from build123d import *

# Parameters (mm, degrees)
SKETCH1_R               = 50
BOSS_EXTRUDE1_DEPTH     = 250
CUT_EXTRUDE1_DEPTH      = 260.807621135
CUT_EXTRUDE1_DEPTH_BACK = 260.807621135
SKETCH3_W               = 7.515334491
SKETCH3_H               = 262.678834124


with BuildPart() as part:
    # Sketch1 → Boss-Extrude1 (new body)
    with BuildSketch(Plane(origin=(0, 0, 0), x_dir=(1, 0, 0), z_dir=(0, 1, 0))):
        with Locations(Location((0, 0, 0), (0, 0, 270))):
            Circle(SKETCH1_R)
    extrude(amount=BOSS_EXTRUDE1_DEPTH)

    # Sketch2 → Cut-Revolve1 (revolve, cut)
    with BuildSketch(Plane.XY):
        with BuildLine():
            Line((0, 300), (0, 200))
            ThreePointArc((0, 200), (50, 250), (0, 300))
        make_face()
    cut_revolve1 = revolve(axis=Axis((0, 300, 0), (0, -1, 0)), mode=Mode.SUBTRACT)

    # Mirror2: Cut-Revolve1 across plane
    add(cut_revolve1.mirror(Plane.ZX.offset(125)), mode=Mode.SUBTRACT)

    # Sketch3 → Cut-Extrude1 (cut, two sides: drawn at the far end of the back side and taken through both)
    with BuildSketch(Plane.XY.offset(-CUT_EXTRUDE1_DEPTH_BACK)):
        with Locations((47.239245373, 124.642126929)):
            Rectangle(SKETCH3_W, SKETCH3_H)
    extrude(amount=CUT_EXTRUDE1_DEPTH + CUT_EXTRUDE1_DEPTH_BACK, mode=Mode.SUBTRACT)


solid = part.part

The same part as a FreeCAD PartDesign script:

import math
import FreeCAD as App
import Part
import Sketcher

V = App.Vector
Q = App.Units.Quantity


def add_polygon(sketch, points):
    """Adds a closed chain of lines whose ends are joined by coincident constraints."""
    first, n = sketch.GeometryCount, len(points)
    for a, b in zip(points, points[1:] + points[:1]):
        sketch.addGeometry(Part.LineSegment(App.Vector(*a, 0), App.Vector(*b, 0)), False)
    for i in range(n):
        sketch.addConstraint(Sketcher.Constraint("Coincident", first + i, 2, first + (i + 1) % n, 1))

doc = App.newDocument("Part")
body = doc.addObject("PartDesign::Body", "Body")

# Sketch on XZ plane
sketch1 = body.newObject("Sketcher::SketchObject", "Sketch")
sketch1.AttachmentSupport = (doc.getObject("XZ_Plane"), [""])
sketch1.MapMode = "FlatFace"
sketch1.addGeometry(Part.Circle(V(0, 0, 0), V(0, 0, 1), 50), False)
sketch1.addConstraint([
    Sketcher.Constraint("Coincident", 0, 3, -1, 1),
    Sketcher.Constraint("Diameter", 0, Q("100 mm")),
])
pad1 = body.newObject("PartDesign::Pad", "Pad")
pad1.Profile = sketch1
pad1.Length = 250
pad1.Reversed = True

# Sketch on XY plane
sketch2 = body.newObject("Sketcher::SketchObject", "Sketch001")
sketch2.AttachmentSupport = (doc.getObject("XY_Plane"), [""])
sketch2.MapMode = "FlatFace"
sketch2.addGeometry([
    Part.LineSegment(V(0, 300, 0), V(0, 200, 0)),
    Part.ArcOfCircle(Part.Circle(V(0, 250, 0), V(0, 0, 1), 50), math.radians(-90), math.radians(90)),
], False)
sketch2.addConstraint([
    Sketcher.Constraint("Coincident", 0, 1, 1, 2),
    Sketcher.Constraint("Coincident", 1, 1, 0, 2),
    Sketcher.Constraint("Vertical", 0),
    Sketcher.Constraint("PointOnObject", 1, 3, -2),
    Sketcher.Constraint("PointOnObject", 0, 1, -2),
    Sketcher.Constraint("Radius", 1, Q("50 mm")),
    Sketcher.Constraint("DistanceY", -1, 1, 1, 3, Q("250 mm")),
])
groove = body.newObject("PartDesign::Groove", "Groove")
groove.Profile = sketch2
groove.ReferenceAxis = (sketch2, ["V_Axis"])
groove.Angle = 360
doc.recompute()

datumplane = body.newObject("PartDesign::Plane", "DatumPlane")
datumplane.AttachmentSupport = (doc.getObject("XZ_Plane"), [""])
datumplane.MapMode = "FlatFace"
datumplane.AttachmentOffset = App.Placement(V(0, 0, -125), App.Rotation())
mirrored = body.newObject("PartDesign::Mirrored", "Mirrored")
mirrored.Originals = [groove]
mirrored.MirrorPlane = (datumplane, [""])
body.Tip = mirrored

# Sketch on XY plane
sketch3 = body.newObject("Sketcher::SketchObject", "Sketch002")
sketch3.AttachmentSupport = (doc.getObject("XY_Plane"), [""])
sketch3.MapMode = "FlatFace"
add_polygon(sketch3, [(43, 256), (43, -7), (51, -7), (51, 256)])  # lines 0-3
sketch3.addConstraint([
    Sketcher.Constraint("Vertical", 0),
    Sketcher.Constraint("Horizontal", 1),
    Sketcher.Constraint("Vertical", 2),
    Sketcher.Constraint("Horizontal", 3),
    Sketcher.Constraint("DistanceX", 1, 1, 1, 2, Q("7.515334 mm")),
    Sketcher.Constraint("DistanceY", 0, 2, 0, 1, Q("262.678834 mm")),
    Sketcher.Constraint("DistanceX", -1, 1, 0, 2, Q("43.481578 mm")),
    Sketcher.Constraint("DistanceY", 0, 2, -1, 1, Q("6.69729 mm")),
])
pocket1 = body.newObject("PartDesign::Pocket", "Pocket")
pocket1.Profile = sketch3
pocket1.Type = "ThroughAll"
pocket1.Midplane = True

doc.recompute()
